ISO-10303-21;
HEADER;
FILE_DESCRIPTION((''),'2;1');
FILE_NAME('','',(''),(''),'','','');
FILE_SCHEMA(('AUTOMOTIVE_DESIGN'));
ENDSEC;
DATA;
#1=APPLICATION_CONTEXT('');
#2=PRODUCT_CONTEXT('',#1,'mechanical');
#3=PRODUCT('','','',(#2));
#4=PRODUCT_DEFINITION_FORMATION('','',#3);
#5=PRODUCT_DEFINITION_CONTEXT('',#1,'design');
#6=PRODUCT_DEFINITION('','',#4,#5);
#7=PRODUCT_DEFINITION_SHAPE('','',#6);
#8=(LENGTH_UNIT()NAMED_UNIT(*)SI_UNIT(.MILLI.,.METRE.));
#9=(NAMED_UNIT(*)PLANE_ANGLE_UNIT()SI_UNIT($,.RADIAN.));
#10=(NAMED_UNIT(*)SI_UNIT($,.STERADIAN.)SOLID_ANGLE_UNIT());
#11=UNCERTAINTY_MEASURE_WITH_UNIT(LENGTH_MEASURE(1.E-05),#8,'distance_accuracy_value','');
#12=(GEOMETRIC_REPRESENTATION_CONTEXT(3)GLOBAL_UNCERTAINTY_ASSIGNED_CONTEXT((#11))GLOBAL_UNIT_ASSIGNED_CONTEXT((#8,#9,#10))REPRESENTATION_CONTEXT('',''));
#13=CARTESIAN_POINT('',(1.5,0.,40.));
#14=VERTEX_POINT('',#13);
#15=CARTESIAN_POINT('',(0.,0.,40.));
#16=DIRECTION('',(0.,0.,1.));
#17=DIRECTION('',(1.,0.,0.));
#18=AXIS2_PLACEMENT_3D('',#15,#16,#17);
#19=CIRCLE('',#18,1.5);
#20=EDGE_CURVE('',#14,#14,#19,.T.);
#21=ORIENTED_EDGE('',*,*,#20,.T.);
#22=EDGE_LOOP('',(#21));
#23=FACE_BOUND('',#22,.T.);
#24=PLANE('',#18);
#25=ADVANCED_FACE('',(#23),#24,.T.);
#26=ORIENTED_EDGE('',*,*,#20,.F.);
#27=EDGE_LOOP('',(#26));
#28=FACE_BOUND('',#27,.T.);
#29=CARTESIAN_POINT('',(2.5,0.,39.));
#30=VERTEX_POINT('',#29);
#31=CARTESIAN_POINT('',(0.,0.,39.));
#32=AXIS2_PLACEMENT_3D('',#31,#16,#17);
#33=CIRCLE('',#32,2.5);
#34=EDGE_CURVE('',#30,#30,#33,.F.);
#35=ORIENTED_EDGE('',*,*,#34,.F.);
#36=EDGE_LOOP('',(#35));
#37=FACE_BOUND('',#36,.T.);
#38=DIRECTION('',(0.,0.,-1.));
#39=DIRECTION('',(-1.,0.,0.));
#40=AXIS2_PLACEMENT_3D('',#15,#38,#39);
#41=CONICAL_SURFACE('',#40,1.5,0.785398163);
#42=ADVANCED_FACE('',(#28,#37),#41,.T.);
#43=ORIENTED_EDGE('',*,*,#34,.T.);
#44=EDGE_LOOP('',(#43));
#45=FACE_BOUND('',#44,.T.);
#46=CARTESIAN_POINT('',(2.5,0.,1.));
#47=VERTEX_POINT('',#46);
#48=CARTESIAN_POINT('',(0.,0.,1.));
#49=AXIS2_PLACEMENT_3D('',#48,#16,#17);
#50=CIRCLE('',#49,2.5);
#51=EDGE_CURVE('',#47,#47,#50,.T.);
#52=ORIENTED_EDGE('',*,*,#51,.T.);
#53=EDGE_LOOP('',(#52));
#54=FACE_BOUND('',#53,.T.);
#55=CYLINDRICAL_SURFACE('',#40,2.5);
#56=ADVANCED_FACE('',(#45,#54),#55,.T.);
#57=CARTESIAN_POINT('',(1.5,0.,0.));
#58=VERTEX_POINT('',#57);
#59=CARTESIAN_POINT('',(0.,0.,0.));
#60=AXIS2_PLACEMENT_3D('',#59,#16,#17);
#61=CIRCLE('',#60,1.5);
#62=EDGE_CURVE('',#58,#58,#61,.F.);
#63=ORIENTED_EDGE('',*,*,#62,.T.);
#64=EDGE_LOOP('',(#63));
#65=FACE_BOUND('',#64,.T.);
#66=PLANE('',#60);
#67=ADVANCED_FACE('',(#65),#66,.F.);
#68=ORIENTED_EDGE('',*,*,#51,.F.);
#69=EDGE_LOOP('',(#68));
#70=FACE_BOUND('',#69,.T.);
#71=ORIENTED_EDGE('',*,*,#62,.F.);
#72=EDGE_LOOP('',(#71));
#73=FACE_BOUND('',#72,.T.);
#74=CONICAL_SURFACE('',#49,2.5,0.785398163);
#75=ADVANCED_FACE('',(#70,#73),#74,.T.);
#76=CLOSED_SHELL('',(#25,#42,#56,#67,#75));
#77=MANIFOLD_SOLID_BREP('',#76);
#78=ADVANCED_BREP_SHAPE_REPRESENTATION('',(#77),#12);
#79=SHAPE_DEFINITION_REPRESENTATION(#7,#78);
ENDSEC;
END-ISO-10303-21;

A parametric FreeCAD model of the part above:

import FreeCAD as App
import Part
import Sketcher

V = App.Vector


def edges_at(feature, points):
    """Names of the edges that pass closest to the given points."""
    edges = feature.Shape.Edges
    near = lambda p: min(range(len(edges)), key=lambda i: edges[i].distToShape(Part.Vertex(*p))[0])
    return sorted({f"Edge{near(p) + 1}" for p in points})

doc = App.newDocument("Part")
body = doc.addObject("PartDesign::Body", "Body")

sketch1 = doc.addObject("Sketcher::SketchObject", "Sketch")
body.addObject(sketch1)
sketch1.AttachmentSupport = (doc.XY_Plane, [""])
sketch1.MapMode = "FlatFace"
sketch1.addGeometry(Part.Circle(V(0, 0, 0), V(0, 0, 1), 2.5), False)
sketch1.addConstraint([
    Sketcher.Constraint("Coincident", 0, 3, -1, 1),
    Sketcher.Constraint("Diameter", 0, 5.0),
])
pad1 = doc.addObject("PartDesign::Pad", "Pad")
body.addObject(pad1)
pad1.Profile = sketch1
pad1.Length = 40
doc.recompute()

chamfer = doc.addObject("PartDesign::Chamfer", "Chamfer")
body.addObject(chamfer)
chamfer.Base = (pad1, edges_at(pad1, [(-2.5, 0, 40)]))
chamfer.Size = 1
doc.recompute()

chamfer2 = doc.addObject("PartDesign::Chamfer", "Chamfer001")
body.addObject(chamfer2)
chamfer2.Base = (chamfer, edges_at(chamfer, [(-2.5, 0, 0)]))
chamfer2.Size = 1

doc.recompute()
